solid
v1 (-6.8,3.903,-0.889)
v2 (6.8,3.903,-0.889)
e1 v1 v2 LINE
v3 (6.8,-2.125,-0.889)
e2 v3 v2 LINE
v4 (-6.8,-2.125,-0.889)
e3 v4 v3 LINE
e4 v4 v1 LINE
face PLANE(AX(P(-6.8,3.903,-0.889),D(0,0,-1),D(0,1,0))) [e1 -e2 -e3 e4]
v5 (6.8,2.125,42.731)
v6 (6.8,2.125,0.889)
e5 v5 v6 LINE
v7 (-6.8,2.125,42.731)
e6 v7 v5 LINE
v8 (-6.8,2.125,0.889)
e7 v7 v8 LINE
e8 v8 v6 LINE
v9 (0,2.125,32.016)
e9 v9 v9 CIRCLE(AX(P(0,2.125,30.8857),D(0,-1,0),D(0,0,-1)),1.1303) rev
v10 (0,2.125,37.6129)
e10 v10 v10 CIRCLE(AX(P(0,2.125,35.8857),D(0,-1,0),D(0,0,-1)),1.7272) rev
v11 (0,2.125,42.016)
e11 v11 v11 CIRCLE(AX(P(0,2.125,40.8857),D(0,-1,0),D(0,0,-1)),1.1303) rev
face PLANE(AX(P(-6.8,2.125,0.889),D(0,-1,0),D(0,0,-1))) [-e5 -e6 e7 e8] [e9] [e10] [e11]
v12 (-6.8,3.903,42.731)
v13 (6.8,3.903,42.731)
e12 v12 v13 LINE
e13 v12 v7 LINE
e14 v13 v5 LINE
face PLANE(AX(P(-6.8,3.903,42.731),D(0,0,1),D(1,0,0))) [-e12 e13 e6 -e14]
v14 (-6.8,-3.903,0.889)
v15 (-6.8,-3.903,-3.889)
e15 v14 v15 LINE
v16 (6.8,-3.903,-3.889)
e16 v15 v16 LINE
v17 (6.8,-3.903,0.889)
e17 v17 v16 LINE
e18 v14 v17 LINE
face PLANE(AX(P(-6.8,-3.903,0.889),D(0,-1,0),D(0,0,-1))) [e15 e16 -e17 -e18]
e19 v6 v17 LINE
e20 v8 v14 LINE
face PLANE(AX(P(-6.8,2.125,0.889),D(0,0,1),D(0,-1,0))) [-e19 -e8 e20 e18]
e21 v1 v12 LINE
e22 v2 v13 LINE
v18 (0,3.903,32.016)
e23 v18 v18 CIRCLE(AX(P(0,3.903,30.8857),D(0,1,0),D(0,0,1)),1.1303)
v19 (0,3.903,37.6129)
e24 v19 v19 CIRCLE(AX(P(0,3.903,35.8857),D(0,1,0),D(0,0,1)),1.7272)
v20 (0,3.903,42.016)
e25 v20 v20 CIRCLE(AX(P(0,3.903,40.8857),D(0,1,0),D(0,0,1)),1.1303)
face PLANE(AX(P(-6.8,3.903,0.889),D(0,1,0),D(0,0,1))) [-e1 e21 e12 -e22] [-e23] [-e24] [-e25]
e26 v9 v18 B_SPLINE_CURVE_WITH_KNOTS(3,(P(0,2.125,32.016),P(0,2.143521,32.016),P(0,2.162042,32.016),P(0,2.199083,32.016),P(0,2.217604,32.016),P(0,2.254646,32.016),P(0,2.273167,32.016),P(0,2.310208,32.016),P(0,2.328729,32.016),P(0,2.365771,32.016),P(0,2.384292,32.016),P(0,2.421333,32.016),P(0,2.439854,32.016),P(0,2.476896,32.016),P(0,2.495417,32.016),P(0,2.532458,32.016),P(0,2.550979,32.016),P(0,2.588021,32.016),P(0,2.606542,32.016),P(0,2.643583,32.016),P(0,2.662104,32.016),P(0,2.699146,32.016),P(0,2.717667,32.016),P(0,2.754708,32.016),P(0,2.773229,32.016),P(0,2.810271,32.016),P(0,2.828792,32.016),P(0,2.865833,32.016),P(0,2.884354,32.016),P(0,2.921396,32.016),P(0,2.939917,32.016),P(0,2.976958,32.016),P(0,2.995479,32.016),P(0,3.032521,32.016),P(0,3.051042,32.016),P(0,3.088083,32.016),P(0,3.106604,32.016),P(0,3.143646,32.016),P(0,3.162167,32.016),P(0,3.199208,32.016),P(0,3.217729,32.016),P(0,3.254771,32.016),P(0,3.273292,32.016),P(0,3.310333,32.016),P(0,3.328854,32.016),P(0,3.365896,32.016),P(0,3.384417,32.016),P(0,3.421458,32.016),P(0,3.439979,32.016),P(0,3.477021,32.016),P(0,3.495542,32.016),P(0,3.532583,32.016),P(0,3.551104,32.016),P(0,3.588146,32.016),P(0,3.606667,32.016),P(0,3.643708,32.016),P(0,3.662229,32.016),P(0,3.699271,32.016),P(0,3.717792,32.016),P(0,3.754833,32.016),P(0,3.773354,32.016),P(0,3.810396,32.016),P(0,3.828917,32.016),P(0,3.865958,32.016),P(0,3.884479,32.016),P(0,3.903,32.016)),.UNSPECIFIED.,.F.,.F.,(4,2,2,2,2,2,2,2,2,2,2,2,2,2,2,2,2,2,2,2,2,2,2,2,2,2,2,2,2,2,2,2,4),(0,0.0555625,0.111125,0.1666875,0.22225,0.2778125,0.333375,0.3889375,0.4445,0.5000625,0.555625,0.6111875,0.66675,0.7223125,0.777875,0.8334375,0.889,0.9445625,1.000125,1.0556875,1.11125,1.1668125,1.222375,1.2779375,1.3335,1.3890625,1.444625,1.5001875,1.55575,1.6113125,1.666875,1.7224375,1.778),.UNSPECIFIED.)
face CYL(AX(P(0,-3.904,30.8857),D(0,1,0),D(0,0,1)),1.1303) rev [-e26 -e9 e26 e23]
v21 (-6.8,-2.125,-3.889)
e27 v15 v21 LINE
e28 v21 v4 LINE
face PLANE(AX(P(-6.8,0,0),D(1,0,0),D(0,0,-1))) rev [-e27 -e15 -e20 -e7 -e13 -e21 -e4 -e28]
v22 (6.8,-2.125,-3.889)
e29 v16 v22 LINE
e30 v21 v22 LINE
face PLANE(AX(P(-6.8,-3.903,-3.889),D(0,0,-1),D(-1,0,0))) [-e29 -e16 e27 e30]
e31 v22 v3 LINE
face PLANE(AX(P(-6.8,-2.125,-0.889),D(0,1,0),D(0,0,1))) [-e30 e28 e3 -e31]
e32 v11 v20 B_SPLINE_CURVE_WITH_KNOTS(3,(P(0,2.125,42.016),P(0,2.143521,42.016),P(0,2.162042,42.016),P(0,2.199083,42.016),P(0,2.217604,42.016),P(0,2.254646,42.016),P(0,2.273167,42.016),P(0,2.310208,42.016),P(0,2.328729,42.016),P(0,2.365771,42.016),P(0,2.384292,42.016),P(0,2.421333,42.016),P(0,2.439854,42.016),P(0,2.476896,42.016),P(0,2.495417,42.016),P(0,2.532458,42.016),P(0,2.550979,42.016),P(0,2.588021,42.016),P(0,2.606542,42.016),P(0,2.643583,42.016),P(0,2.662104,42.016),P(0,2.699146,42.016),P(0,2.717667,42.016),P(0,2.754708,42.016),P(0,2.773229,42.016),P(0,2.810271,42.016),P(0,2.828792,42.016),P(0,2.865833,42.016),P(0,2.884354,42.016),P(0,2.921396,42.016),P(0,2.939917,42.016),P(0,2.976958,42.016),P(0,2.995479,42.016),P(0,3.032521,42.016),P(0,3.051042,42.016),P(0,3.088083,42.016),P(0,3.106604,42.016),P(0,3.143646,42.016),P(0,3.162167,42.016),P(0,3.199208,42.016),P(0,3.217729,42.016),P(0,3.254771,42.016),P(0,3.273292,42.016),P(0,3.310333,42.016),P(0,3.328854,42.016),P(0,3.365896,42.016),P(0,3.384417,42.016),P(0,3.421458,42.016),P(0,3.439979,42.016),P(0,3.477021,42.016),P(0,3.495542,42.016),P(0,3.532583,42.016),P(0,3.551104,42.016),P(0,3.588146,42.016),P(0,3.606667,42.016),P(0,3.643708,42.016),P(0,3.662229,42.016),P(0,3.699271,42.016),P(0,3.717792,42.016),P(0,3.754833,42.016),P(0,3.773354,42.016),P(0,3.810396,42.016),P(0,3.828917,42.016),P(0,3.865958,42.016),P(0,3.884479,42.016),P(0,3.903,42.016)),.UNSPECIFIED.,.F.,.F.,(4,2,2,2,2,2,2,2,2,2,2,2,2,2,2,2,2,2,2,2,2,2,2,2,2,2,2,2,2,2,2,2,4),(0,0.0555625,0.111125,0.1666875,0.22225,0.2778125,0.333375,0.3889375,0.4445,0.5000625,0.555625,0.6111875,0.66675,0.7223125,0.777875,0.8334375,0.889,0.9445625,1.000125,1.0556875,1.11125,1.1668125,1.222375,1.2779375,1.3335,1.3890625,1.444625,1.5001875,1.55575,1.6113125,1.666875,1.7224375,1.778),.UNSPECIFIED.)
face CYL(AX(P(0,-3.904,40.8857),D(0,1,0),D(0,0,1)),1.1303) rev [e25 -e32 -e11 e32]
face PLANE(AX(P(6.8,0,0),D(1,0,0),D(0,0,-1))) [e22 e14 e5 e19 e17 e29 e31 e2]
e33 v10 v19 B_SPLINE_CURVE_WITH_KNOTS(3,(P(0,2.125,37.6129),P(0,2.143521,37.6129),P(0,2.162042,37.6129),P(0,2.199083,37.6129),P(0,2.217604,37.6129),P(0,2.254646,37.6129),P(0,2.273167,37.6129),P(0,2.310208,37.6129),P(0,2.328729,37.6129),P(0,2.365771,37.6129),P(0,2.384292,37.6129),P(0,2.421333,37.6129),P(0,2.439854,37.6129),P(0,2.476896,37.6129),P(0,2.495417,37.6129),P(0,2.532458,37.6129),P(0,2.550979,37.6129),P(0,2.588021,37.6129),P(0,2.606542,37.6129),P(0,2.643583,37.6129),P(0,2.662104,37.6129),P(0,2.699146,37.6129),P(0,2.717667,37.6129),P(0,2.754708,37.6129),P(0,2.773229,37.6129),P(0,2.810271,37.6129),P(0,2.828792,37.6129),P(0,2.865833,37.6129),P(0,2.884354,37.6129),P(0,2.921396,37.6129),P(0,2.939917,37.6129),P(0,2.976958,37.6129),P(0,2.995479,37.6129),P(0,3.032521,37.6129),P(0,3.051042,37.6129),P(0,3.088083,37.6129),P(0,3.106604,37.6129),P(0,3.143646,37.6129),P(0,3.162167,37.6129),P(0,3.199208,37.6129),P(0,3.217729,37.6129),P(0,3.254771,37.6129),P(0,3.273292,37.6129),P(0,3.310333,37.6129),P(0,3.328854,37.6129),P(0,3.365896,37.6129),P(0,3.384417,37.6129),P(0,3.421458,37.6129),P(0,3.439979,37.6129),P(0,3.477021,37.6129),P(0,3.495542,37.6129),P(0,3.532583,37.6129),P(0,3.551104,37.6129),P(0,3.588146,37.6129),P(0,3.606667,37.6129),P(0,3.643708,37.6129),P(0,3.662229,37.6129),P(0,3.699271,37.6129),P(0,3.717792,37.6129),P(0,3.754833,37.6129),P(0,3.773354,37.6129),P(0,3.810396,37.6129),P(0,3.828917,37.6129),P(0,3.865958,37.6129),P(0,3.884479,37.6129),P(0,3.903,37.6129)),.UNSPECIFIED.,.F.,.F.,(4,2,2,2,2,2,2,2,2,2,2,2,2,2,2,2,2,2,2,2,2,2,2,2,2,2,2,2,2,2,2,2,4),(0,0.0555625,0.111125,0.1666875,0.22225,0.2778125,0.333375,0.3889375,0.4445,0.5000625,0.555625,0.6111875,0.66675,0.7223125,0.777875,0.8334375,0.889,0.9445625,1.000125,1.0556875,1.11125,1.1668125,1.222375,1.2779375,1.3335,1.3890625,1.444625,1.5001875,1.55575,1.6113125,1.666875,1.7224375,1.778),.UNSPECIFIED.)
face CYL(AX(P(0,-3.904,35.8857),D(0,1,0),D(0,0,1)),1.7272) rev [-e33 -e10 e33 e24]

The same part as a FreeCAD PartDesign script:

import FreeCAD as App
import Part
import Sketcher
from FreeCAD import Vector
Q = App.Units.Quantity


def add_polygon(sketch, points):
    """Adds a closed chain of lines whose ends are joined by coincident constraints."""
    first, n = sketch.GeometryCount, len(points)
    for a, b in zip(points, points[1:] + points[:1]):
        sketch.addGeometry(Part.LineSegment(App.Vector(*a, 0), App.Vector(*b, 0)), False)
    for i in range(n):
        sketch.addConstraint(Sketcher.Constraint("Coincident", first + i, 2, first + (i + 1) % n, 1))

doc = App.newDocument("Part")
params = doc.addObject("Spreadsheet::Sheet", "Params")
for row, (alias, value) in enumerate([
    ("sketch1_width", "0.07 in"),
    ("pad1_length", "6.8 mm"),
    ("pad1_length2", "6.8 mm"),
    ("sketch2_diameter", "0.089 in"),
    ("sketch3_diameter", "0.136 in"),
    ("sketch4_diameter", "0.089 in"),
], start=1):
    params.set(f"A{row}", alias)
    params.set(f"B{row}", "=" + value)
    params.setAlias(f"B{row}", alias)

body = doc.addObject("PartDesign::Body", "Body")

sketch1 = body.newObject("Sketcher::SketchObject", "Sketch")
sketch1.AttachmentSupport = (doc.getObject("YZ_Plane"), [""])
sketch1.MapMode = "FlatFace"
add_polygon(sketch1, [(3.9, -0.9), (3.9, 42.7), (2.1, 42.7), (2.1, 0.9), (-3.9, 0.9), (-3.9, -3.9), (-2.1, -3.9), (-2.1, -0.9)])
sketch1.addConstraint([
    Sketcher.Constraint("Vertical", 0),
    Sketcher.Constraint("Horizontal", 1),
    Sketcher.Constraint("Vertical", 2),
    Sketcher.Constraint("Horizontal", 3),
    Sketcher.Constraint("Vertical", 4),
    Sketcher.Constraint("Horizontal", 5),
    Sketcher.Constraint("Vertical", 6),
    Sketcher.Constraint("Horizontal", 7),
    Sketcher.Constraint("Symmetric", 2, 2, 6, 2, -1, 1),
    Sketcher.Constraint("Equal", 1, 5),
    Sketcher.Constraint("DistanceX", 1, 2, 1, 1, Q("0.07 in")),
    Sketcher.Constraint("DistanceY", 6, 2, 3, 2, Q("0.07 in")),
    Sketcher.Constraint("DistanceX", 3, 2, 3, 1, 6.028),
    Sketcher.Constraint("DistanceY", 0, 1, 0, 2, 43.62),
    Sketcher.Constraint("DistanceY", 4, 2, 4, 1, 4.778),
])
sketch1.setExpression("Constraints[18]", "Params.sketch1_width")
pad1 = body.newObject("PartDesign::Pad", "Pad")
pad1.Profile = sketch1
pad1.Type = "TwoLengths"
pad1.setExpression("Length", "Params.pad1_length")
pad1.setExpression("Length2", "Params.pad1_length2")

sketch2 = body.newObject("Sketcher::SketchObject", "Sketch001")
sketch2.AttachmentSupport = (doc.getObject("XZ_Plane"), [""])
sketch2.MapMode = "FlatFace"
sketch2.AttachmentOffset = App.Placement(Vector(0, 0, -3.903), App.Rotation())
sketch2.addGeometry(Part.Circle(Vector(0, 40.9, 0), Vector(0, 0, 1), 1.1), False)
sketch2.addConstraint([
    Sketcher.Constraint("PointOnObject", 0, 3, -2),
    Sketcher.Constraint("Diameter", 0, Q("0.089 in")),
    Sketcher.Constraint("DistanceY", -1, 1, 0, 3, 40.8857),
])
sketch2.setExpression("Constraints[1]", "Params.sketch2_diameter")
pocket1 = body.newObject("PartDesign::Pocket", "Pocket")
pocket1.Profile = sketch2
pocket1.Type = "UpToFirst"
pocket1.Reversed = True

sketch3 = body.newObject("Sketcher::SketchObject", "Sketch002")
sketch3.AttachmentSupport = (doc.getObject("XZ_Plane"), [""])
sketch3.MapMode = "FlatFace"
sketch3.AttachmentOffset = App.Placement(Vector(0, 0, -3.903), App.Rotation())
sketch3.addGeometry(Part.Circle(Vector(0, 35.9, 0), Vector(0, 0, 1), 1.7), False)
sketch3.addConstraint([
    Sketcher.Constraint("PointOnObject", 0, 3, -2),
    Sketcher.Constraint("Diameter", 0, Q("0.136 in")),
    Sketcher.Constraint("DistanceY", -1, 1, 0, 3, 35.8857),
])
sketch3.setExpression("Constraints[1]", "Params.sketch3_diameter")
pocket2 = body.newObject("PartDesign::Pocket", "Pocket001")
pocket2.Profile = sketch3
pocket2.Type = "UpToFirst"
pocket2.Reversed = True

sketch4 = body.newObject("Sketcher::SketchObject", "Sketch003")
sketch4.AttachmentSupport = (doc.getObject("XZ_Plane"), [""])
sketch4.MapMode = "FlatFace"
sketch4.AttachmentOffset = App.Placement(Vector(0, 0, -3.903), App.Rotation())
sketch4.addGeometry(Part.Circle(Vector(0, 30.9, 0), Vector(0, 0, 1), 1.1), False)
sketch4.addConstraint([
    Sketcher.Constraint("PointOnObject", 0, 3, -2),
    Sketcher.Constraint("Diameter", 0, Q("0.089 in")),
    Sketcher.Constraint("DistanceY", -1, 1, 0, 3, 30.8857),
])
sketch4.setExpression("Constraints[1]", "Params.sketch4_diameter")
pocket3 = body.newObject("PartDesign::Pocket", "Pocket002")
pocket3.Profile = sketch4
pocket3.Type = "UpToFirst"
pocket3.Reversed = True

doc.recompute()
